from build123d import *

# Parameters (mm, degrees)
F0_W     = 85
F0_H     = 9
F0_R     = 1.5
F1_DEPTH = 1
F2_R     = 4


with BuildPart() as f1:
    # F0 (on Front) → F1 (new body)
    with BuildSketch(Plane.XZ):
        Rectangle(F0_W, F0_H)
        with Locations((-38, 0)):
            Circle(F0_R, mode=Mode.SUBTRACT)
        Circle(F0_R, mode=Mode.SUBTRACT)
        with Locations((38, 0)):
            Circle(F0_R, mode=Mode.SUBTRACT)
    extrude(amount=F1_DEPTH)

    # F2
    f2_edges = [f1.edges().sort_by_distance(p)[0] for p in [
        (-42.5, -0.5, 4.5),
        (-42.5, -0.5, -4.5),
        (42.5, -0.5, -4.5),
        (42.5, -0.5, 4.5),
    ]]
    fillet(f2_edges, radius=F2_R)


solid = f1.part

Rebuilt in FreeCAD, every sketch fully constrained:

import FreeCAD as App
import Part
import Sketcher

V = App.Vector


def edges_at(feature, points):
    """Names of the edges that pass closest to the given points."""
    edges = feature.Shape.Edges
    near = lambda p: min(range(len(edges)), key=lambda i: edges[i].distToShape(Part.Vertex(*p))[0])
    return sorted({f"Edge{near(p) + 1}" for p in points})

doc = App.newDocument("Part")
body = doc.addObject("PartDesign::Body", "Body")

sketch1 = body.newObject("Sketcher::SketchObject", "Sketch")
sketch1.AttachmentSupport = (doc.getObject("XZ_Plane"), [""])
sketch1.MapMode = "FlatFace"
sketch1.addGeometry([
    Part.LineSegment(V(-42.5, 4.5, 0), V(-42.5, -4.5, 0)),
    Part.LineSegment(V(-42.5, -4.5, 0), V(42.5, -4.5, 0)),
    Part.LineSegment(V(42.5, -4.5, 0), V(42.5, 4.5, 0)),
    Part.LineSegment(V(42.5, 4.5, 0), V(-42.5, 4.5, 0)),
    Part.Circle(V(-38, 0, 0), V(0, 0, 1), 1.5),
    Part.Circle(V(0, 0, 0), V(0, 0, 1), 1.5),
    Part.Circle(V(38, 0, 0), V(0, 0, 1), 1.5),
], False)
sketch1.addConstraint([
    Sketcher.Constraint("Coincident", 0, 2, 1, 1),
    Sketcher.Constraint("Coincident", 1, 2, 2, 1),
    Sketcher.Constraint("Coincident", 2, 2, 3, 1),
    Sketcher.Constraint("Coincident", 3, 2, 0, 1),
    Sketcher.Constraint("Vertical", 0),
    Sketcher.Constraint("Horizontal", 1),
    Sketcher.Constraint("Vertical", 2),
    Sketcher.Constraint("Horizontal", 3),
    Sketcher.Constraint("Coincident", 5, 3, -1, 1),
    Sketcher.Constraint("Equal", 4, 5),
    Sketcher.Constraint("Equal", 5, 6),
    Sketcher.Constraint("Symmetric", 4, 3, 6, 3, -1, 1),
    Sketcher.Constraint("Symmetric", 0, 2, 2, 2, -1, 1),
    Sketcher.Constraint("PointOnObject", 4, 3, -1),
    Sketcher.Constraint("Diameter", 4, 3.0),
    Sketcher.Constraint("DistanceX", 1, 1, 1, 2, 85.0),
    Sketcher.Constraint("DistanceY", 0, 2, 0, 1, 9.0),
    Sketcher.Constraint("DistanceX", 4, 3, -1, 1, 38.0),
])
pad1 = body.newObject("PartDesign::Pad", "Pad")
pad1.Profile = sketch1
pad1.Length = 1
doc.recompute()

fillet = body.newObject("PartDesign::Fillet", "Fillet")
fillet.Base = (pad1, edges_at(pad1, [
    (-42.5, -0.5, 4.5),
    (-42.5, -0.5, -4.5),
    (42.5, -0.5, -4.5),
    (42.5, -0.5, 4.5),
]))
fillet.Radius = 4

doc.recompute()
